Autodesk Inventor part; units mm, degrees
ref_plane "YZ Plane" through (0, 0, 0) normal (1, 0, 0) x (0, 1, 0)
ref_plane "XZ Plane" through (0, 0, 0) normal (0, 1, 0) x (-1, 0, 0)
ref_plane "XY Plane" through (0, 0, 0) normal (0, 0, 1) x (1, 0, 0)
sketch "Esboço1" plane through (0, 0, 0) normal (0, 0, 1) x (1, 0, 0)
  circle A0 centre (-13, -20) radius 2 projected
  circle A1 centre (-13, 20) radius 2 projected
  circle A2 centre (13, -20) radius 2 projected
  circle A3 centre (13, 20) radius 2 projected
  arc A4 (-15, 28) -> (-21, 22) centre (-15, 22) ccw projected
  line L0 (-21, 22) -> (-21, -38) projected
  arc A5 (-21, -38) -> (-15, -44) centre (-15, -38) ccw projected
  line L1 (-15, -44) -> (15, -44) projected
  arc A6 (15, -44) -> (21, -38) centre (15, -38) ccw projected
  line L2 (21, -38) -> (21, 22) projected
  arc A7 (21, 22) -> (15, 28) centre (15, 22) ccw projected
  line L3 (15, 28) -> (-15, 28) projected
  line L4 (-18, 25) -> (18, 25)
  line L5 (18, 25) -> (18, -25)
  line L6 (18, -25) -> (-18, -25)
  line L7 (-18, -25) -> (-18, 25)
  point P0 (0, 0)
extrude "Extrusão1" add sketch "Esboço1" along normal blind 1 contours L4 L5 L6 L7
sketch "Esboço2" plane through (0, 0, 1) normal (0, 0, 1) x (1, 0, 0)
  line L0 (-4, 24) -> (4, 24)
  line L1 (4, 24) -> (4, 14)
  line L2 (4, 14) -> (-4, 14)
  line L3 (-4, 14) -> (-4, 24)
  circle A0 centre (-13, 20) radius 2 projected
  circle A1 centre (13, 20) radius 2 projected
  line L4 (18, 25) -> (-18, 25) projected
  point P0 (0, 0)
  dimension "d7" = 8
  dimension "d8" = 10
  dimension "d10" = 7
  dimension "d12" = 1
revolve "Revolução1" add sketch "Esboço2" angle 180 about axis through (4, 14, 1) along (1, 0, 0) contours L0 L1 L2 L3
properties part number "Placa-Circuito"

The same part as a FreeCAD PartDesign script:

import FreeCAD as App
import Part
import Sketcher
Q = App.Units.Quantity


def add_polygon(sketch, points):
    """Adds a closed chain of lines whose ends are joined by coincident constraints."""
    first, n = sketch.GeometryCount, len(points)
    for a, b in zip(points, points[1:] + points[:1]):
        sketch.addGeometry(Part.LineSegment(App.Vector(*a, 0), App.Vector(*b, 0)), False)
    for i in range(n):
        sketch.addConstraint(Sketcher.Constraint("Coincident", first + i, 2, first + (i + 1) % n, 1))

doc = App.newDocument("Part")
body = doc.addObject("PartDesign::Body", "Body")

# Sketch on XY plane
sketch1 = body.newObject("Sketcher::SketchObject", "Sketch")
sketch1.AttachmentSupport = (doc.getObject("XY_Plane"), [""])
sketch1.MapMode = "FlatFace"
add_polygon(sketch1, [(18, 25), (-18, 25), (-18, -25), (18, -25)])  # lines 0-3
sketch1.addGeometry(Part.Circle(App.Vector(-13, -20, 0), App.Vector(0, 0, 1), 2), False)  # 4
sketch1.addGeometry(Part.Circle(App.Vector(13, -20, 0), App.Vector(0, 0, 1), 2), False)  # 5
sketch1.addGeometry(Part.Circle(App.Vector(-13, 20, 0), App.Vector(0, 0, 1), 2), False)  # 6
sketch1.addGeometry(Part.Circle(App.Vector(13, 20, 0), App.Vector(0, 0, 1), 2), False)  # 7
sketch1.addConstraint(Sketcher.Constraint("Horizontal", 0))
sketch1.addConstraint(Sketcher.Constraint("Vertical", 1))
sketch1.addConstraint(Sketcher.Constraint("Horizontal", 2))
sketch1.addConstraint(Sketcher.Constraint("Vertical", 3))
sketch1.addConstraint(Sketcher.Constraint("Equal", 4, 5))
sketch1.addConstraint(Sketcher.Constraint("Equal", 5, 6))
sketch1.addConstraint(Sketcher.Constraint("Equal", 6, 7))
sketch1.addConstraint(Sketcher.Constraint("Symmetric", 5, 3, 6, 3, -1, 1))
sketch1.addConstraint(Sketcher.Constraint("Symmetric", 4, 3, 7, 3, -1, 1))
sketch1.addConstraint(Sketcher.Constraint("Symmetric", 0, 2, 2, 2, -1, 1))
sketch1.addConstraint(Sketcher.Constraint("Symmetric", 4, 3, 5, 3, -2))
sketch1.addConstraint(Sketcher.Constraint("Diameter", 4, Q("4 mm")))
sketch1.addConstraint(Sketcher.Constraint("DistanceX", 0, 2, 0, 1, Q("36 mm")))
sketch1.addConstraint(Sketcher.Constraint("DistanceY", 1, 2, 1, 1, Q("50 mm")))
sketch1.addConstraint(Sketcher.Constraint("DistanceX", 4, 3, -1, 1, Q("13 mm")))
sketch1.addConstraint(Sketcher.Constraint("DistanceY", 4, 3, -1, 1, Q("20 mm")))
pad1 = body.newObject("PartDesign::Pad", "Pad")
pad1.Profile = sketch1
pad1.Length = 1

# Sketch on XY plane
sketch2 = body.newObject("Sketcher::SketchObject", "Sketch001")
sketch2.AttachmentSupport = (doc.getObject("XY_Plane"), [""])
sketch2.MapMode = "FlatFace"
sketch2.AttachmentOffset = App.Placement(App.Vector(0, 0, 1), App.Rotation())
add_polygon(sketch2, [(4, 24), (-4, 24), (-4, 14), (4, 14)])  # lines 0-3
sketch2.addGeometry(Part.LineSegment(App.Vector(-4, 14, 0), App.Vector(4, 14, 0)), True)  # axis
sketch2.addConstraint(Sketcher.Constraint("Horizontal", 0))
sketch2.addConstraint(Sketcher.Constraint("Vertical", 1))
sketch2.addConstraint(Sketcher.Constraint("Horizontal", 2))
sketch2.addConstraint(Sketcher.Constraint("Vertical", 3))
sketch2.addConstraint(Sketcher.Constraint("Horizontal", 4))
sketch2.addConstraint(Sketcher.Constraint("Coincident", 4, 1, 1, 2))
sketch2.addConstraint(Sketcher.Constraint("Vertical", 3, 2, 4, 2))
sketch2.addConstraint(Sketcher.Constraint("DistanceX", 0, 2, 0, 1, Q("8 mm")))
sketch2.addConstraint(Sketcher.Constraint("DistanceY", 1, 2, 1, 1, Q("10 mm")))
sketch2.addConstraint(Sketcher.Constraint("DistanceX", 0, 2, -1, 1, Q("4 mm")))
sketch2.addConstraint(Sketcher.Constraint("DistanceY", -1, 1, 0, 2, Q("24 mm")))
revolution = body.newObject("PartDesign::Revolution", "Revolution")
revolution.Profile = sketch2
revolution.ReferenceAxis = (sketch2, ["Axis0"])
revolution.Angle = 180

doc.recompute()
